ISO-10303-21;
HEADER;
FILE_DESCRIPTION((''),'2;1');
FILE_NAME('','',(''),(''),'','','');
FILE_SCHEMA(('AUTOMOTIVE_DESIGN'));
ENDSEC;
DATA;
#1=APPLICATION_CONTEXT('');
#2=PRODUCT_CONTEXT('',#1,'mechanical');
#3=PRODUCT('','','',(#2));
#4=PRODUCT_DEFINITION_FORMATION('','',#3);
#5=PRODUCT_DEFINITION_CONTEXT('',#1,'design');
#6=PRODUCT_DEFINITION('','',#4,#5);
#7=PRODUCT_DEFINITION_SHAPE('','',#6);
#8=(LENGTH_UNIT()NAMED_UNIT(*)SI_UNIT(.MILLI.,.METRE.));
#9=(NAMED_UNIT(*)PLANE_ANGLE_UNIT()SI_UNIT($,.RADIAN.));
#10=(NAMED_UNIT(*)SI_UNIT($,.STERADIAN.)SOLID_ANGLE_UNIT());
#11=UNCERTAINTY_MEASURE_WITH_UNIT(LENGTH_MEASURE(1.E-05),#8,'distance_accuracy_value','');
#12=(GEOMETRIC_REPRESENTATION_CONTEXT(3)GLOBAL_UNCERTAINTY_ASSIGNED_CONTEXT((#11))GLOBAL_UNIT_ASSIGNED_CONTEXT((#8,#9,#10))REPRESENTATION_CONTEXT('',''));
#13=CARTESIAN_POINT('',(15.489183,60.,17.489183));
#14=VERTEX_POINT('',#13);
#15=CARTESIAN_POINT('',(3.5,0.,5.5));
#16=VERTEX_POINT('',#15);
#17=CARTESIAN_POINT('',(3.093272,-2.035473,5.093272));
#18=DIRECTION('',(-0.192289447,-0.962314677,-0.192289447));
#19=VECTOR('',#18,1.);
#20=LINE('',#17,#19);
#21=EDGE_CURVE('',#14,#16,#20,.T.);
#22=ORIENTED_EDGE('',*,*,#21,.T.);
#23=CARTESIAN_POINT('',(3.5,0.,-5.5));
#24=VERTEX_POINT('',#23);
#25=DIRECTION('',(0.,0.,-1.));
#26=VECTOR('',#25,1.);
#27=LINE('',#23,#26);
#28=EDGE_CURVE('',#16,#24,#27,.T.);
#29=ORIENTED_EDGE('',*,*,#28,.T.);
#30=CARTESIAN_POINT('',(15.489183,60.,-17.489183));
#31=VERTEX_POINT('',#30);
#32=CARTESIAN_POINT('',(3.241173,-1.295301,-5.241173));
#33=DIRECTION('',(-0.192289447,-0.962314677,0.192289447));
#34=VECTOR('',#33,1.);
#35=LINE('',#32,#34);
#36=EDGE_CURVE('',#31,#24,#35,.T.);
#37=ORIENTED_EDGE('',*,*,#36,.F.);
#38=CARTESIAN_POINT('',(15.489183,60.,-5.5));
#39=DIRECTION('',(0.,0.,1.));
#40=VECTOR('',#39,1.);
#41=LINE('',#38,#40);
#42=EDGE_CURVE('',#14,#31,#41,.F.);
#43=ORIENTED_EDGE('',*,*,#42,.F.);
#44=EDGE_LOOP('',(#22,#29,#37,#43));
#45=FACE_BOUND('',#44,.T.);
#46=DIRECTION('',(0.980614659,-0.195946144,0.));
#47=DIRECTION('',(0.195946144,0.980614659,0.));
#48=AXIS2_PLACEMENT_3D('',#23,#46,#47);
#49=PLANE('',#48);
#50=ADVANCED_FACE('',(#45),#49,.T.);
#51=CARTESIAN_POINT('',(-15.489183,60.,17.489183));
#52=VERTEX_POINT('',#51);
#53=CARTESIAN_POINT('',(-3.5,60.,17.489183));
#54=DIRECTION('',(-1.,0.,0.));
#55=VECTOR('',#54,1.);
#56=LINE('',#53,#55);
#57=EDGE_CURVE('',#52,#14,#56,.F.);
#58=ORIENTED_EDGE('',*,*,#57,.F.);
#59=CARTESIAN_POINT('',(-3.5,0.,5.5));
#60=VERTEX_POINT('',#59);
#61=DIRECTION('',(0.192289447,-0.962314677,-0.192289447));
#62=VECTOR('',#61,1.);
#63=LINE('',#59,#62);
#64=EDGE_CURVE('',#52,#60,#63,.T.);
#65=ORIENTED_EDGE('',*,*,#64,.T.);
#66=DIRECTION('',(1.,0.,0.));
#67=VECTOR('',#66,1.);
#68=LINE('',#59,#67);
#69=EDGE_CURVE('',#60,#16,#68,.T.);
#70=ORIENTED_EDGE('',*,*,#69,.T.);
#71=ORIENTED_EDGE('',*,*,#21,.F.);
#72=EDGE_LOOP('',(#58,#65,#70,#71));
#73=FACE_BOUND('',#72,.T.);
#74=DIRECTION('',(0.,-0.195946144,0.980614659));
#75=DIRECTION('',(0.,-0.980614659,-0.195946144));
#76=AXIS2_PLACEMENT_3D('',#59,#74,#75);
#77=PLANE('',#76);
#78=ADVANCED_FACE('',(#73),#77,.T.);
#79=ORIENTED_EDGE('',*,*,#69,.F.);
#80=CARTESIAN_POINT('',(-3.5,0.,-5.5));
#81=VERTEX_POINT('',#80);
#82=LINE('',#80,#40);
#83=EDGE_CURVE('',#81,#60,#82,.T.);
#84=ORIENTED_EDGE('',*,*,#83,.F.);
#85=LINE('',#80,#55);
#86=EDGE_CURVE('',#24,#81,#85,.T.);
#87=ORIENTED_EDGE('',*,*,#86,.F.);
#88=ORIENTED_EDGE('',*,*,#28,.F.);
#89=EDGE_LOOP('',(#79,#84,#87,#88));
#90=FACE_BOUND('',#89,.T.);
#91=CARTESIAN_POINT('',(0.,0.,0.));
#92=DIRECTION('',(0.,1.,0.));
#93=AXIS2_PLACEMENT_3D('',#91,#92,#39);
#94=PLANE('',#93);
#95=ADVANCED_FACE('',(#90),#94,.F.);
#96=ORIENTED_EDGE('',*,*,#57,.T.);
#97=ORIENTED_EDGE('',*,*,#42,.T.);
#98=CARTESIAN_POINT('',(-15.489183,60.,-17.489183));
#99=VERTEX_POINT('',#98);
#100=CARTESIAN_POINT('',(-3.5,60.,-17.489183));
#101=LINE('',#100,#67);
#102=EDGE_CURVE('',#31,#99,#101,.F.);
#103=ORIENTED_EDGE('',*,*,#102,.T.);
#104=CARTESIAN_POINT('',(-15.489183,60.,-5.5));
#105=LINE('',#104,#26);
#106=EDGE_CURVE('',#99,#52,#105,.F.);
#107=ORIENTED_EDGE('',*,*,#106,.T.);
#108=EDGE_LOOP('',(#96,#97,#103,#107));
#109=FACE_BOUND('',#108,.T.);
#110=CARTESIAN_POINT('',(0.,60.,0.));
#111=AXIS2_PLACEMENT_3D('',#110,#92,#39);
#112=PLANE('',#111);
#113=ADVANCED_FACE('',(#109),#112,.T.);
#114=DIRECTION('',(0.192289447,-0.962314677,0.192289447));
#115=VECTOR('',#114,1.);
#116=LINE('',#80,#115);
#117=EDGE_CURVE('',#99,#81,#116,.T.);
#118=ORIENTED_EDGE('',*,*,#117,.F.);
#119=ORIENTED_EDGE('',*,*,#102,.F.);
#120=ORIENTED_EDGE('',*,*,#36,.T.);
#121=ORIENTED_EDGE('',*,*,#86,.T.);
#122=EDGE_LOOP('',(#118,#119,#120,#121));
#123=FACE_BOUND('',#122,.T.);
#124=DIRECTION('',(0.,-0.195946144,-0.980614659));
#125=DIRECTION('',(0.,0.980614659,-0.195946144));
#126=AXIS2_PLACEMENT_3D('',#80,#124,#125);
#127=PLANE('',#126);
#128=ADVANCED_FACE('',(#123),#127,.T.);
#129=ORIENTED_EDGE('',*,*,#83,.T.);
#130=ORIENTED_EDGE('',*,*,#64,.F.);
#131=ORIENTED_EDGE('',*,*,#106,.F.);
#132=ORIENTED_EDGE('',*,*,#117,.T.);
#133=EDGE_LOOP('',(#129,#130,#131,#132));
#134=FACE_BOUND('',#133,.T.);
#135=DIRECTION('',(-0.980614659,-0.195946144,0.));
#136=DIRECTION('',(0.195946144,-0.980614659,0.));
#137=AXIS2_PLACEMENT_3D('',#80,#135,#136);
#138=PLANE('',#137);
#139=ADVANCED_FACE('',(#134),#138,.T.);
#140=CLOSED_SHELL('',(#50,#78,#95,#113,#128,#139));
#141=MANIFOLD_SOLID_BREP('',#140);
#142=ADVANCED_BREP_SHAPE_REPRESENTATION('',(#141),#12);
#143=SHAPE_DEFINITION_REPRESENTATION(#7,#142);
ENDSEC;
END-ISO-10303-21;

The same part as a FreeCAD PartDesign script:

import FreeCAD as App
import Part
import Sketcher

V = App.Vector


def add_polygon(sketch, points):
    """Adds a closed chain of lines whose ends are joined by coincident constraints."""
    first, n = sketch.GeometryCount, len(points)
    for a, b in zip(points, points[1:] + points[:1]):
        sketch.addGeometry(Part.LineSegment(App.Vector(*a, 0), App.Vector(*b, 0)), False)
    for i in range(n):
        sketch.addConstraint(Sketcher.Constraint("Coincident", first + i, 2, first + (i + 1) % n, 1))

doc = App.newDocument("Part")
params = doc.addObject("Spreadsheet::Sheet", "Params")
for row, (alias, value) in enumerate([
    ("sketch1_width", "7 mm"),
    ("sketch1_height", "11 mm"),
    ("pad1_length", "60 mm"),
    ("pad1_taper", "11.3 deg"),
], start=1):
    params.set(f"A{row}", alias)
    params.set(f"B{row}", "=" + value)
    params.setAlias(f"B{row}", alias)

body = doc.addObject("PartDesign::Body", "Body")

# Sketch on XZ plane
sketch1 = body.newObject("Sketcher::SketchObject", "Sketch")
sketch1.AttachmentSupport = (doc.getObject("XZ_Plane"), [""])
sketch1.MapMode = "FlatFace"
add_polygon(sketch1, [(-4, -6), (-4, 6), (4, 6), (4, -6)])  # lines 0-3
sketch1.addConstraint([
    Sketcher.Constraint("Vertical", 0),
    Sketcher.Constraint("Horizontal", 1),
    Sketcher.Constraint("Vertical", 2),
    Sketcher.Constraint("Horizontal", 3),
    Sketcher.Constraint("Symmetric", 0, 2, 2, 2, -1, 1),
    Sketcher.Constraint("DistanceX", 1, 1, 1, 2, 7.0),
    Sketcher.Constraint("DistanceY", 0, 1, 0, 2, 11.0),
])
sketch1.setExpression("Constraints[9]", "Params.sketch1_width")
sketch1.setExpression("Constraints[10]", "Params.sketch1_height")
pad1 = body.newObject("PartDesign::Pad", "Pad")
pad1.Profile = sketch1
pad1.setExpression("Length", "Params.pad1_length")
pad1.Reversed = True
pad1.setExpression("TaperAngle", "Params.pad1_taper")

doc.recompute()
